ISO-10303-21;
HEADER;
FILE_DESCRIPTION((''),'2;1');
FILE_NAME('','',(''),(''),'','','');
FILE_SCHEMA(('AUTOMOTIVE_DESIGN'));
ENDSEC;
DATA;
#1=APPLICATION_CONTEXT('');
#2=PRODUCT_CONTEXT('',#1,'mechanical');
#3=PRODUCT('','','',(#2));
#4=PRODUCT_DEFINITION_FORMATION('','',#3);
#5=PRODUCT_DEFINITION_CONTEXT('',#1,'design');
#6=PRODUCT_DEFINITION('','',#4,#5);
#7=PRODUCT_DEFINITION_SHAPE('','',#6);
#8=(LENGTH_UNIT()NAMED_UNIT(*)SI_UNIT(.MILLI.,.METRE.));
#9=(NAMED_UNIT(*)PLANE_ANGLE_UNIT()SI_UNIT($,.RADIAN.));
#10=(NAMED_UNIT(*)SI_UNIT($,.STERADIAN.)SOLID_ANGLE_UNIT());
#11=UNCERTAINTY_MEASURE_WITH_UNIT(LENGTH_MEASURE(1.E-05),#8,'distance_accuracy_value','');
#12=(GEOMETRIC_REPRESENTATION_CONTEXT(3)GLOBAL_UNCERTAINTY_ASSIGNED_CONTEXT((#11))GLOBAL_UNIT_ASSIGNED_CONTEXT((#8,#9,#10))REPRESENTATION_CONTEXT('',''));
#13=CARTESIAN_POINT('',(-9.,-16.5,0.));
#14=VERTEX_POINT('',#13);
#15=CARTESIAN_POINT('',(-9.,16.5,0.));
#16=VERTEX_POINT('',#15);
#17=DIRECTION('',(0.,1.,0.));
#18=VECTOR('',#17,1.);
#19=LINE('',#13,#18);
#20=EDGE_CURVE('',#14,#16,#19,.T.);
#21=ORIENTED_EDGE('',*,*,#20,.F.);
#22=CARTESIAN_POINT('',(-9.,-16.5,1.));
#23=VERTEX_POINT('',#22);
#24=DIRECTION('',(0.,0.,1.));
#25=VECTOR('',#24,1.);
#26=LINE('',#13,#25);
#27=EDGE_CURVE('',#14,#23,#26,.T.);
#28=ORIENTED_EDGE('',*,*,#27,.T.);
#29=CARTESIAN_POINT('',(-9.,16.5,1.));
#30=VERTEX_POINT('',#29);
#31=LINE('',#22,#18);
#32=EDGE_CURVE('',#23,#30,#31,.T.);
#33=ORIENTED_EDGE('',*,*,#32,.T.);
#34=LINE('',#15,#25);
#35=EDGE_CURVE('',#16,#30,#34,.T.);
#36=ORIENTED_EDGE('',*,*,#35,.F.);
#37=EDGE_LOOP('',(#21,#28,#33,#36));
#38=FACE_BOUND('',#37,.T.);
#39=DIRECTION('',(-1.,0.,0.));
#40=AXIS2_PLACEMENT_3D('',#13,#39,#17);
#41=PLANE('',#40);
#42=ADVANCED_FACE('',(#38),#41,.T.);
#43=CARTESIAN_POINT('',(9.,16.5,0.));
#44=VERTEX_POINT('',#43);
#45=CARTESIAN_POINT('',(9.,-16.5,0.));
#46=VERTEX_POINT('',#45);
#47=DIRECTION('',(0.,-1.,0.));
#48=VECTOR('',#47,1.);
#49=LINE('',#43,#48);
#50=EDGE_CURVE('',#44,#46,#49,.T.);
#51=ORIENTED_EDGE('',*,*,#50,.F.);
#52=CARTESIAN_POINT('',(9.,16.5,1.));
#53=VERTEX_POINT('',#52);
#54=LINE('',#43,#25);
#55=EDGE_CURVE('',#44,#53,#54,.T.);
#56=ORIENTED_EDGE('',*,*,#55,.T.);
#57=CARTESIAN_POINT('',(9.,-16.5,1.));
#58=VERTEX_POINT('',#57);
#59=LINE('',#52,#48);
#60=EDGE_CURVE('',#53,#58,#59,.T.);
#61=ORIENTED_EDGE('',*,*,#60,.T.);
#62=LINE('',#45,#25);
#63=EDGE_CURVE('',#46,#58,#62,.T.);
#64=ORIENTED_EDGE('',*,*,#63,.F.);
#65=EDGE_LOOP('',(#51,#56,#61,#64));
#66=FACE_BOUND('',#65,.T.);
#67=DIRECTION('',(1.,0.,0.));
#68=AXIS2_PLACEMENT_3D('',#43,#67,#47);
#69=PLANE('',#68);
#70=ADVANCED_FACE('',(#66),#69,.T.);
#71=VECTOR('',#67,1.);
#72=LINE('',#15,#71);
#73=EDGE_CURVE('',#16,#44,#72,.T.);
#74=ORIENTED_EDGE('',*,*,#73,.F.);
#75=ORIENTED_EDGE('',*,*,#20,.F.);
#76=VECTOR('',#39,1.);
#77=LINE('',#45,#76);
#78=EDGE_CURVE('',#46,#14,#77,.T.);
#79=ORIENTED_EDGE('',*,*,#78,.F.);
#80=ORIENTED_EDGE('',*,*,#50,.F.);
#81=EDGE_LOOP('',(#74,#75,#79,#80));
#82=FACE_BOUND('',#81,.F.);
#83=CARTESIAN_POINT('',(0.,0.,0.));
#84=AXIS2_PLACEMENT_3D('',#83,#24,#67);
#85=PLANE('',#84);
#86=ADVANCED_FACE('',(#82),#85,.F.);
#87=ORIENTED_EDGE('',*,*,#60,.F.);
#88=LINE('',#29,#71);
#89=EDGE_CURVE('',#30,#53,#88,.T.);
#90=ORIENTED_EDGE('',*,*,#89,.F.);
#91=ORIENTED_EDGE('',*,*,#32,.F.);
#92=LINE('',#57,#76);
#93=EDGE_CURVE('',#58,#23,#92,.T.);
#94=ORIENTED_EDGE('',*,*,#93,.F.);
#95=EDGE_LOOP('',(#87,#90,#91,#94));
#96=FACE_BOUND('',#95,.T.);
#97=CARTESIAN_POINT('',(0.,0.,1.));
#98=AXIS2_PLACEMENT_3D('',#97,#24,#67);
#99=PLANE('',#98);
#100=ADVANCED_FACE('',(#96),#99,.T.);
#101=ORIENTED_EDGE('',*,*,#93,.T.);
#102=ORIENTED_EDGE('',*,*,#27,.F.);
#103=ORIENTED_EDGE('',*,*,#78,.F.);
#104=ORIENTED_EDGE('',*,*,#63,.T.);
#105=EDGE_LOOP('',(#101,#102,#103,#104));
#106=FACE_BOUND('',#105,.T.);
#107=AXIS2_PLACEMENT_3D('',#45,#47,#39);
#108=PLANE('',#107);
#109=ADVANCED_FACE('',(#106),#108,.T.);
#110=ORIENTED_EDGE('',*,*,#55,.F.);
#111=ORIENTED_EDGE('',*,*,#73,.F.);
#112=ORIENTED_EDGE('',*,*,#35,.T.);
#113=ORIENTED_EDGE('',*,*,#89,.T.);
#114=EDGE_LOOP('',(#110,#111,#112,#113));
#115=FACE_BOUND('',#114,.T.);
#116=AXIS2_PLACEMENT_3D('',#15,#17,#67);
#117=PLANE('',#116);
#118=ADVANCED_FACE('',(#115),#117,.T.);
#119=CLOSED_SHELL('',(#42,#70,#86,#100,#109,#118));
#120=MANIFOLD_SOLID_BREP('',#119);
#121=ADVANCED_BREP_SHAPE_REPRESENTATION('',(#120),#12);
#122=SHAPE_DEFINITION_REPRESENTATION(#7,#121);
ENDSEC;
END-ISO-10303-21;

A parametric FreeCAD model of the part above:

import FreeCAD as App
import Part
import Sketcher
from FreeCAD import Vector
Q = App.Units.Quantity


def add_polygon(sketch, points):
    """Adds a closed chain of lines whose ends are joined by coincident constraints."""
    first, n = sketch.GeometryCount, len(points)
    for a, b in zip(points, points[1:] + points[:1]):
        sketch.addGeometry(Part.LineSegment(App.Vector(*a, 0), App.Vector(*b, 0)), False)
    for i in range(n):
        sketch.addConstraint(Sketcher.Constraint("Coincident", first + i, 2, first + (i + 1) % n, 1))

doc = App.newDocument("Part")
body = doc.addObject("PartDesign::Body", "Body")

sketch1 = body.newObject("Sketcher::SketchObject", "Sketch")
sketch1.AttachmentSupport = (doc.getObject("XY_Plane"), [""])
sketch1.MapMode = "FlatFace"
add_polygon(sketch1, [(9, 16), (-9, 16), (-9, -16), (9, -16)])
sketch1.addConstraint([
    Sketcher.Constraint("Horizontal", 0),
    Sketcher.Constraint("Vertical", 1),
    Sketcher.Constraint("Horizontal", 2),
    Sketcher.Constraint("Vertical", 3),
    Sketcher.Constraint("Symmetric", 0, 2, 2, 2, -1, 1),
    Sketcher.Constraint("DistanceX", 0, 2, 0, 1, Q("18 mm")),
    Sketcher.Constraint("DistanceY", 1, 2, 1, 1, Q("33 mm")),
])
pad1 = body.newObject("PartDesign::Pad", "Pad")
pad1.Profile = sketch1
pad1.Length = 1

doc.recompute()
